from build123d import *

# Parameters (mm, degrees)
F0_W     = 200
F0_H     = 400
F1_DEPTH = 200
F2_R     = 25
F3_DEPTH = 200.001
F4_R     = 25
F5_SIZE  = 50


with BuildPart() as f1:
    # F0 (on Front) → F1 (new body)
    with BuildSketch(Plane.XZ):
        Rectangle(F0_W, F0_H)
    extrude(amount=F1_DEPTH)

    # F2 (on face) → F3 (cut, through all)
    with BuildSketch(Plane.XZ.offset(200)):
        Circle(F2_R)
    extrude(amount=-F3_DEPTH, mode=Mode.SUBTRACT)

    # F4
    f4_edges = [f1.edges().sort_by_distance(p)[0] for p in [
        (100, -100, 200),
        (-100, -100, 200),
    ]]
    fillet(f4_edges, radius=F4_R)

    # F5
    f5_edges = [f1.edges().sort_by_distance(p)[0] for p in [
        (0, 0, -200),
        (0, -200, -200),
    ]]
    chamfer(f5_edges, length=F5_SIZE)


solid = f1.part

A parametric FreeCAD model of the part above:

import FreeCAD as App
import Part
import Sketcher
from FreeCAD import Vector
Q = App.Units.Quantity


def edges_at(feature, points):
    """Names of the edges that pass closest to the given points."""
    edges = feature.Shape.Edges
    near = lambda p: min(range(len(edges)), key=lambda i: edges[i].distToShape(Part.Vertex(*p))[0])
    return sorted({f"Edge{near(p) + 1}" for p in points})


def add_polygon(sketch, points):
    """Adds a closed chain of lines whose ends are joined by coincident constraints."""
    first, n = sketch.GeometryCount, len(points)
    for a, b in zip(points, points[1:] + points[:1]):
        sketch.addGeometry(Part.LineSegment(App.Vector(*a, 0), App.Vector(*b, 0)), False)
    for i in range(n):
        sketch.addConstraint(Sketcher.Constraint("Coincident", first + i, 2, first + (i + 1) % n, 1))

doc = App.newDocument("Part")
body = doc.addObject("PartDesign::Body", "Body")

# Sketch on XZ plane
sketch1 = body.newObject("Sketcher::SketchObject", "Sketch")
sketch1.AttachmentSupport = (doc.getObject("XZ_Plane"), [""])
sketch1.MapMode = "FlatFace"
add_polygon(sketch1, [(-100, 200), (-100, -200), (100, -200), (100, 200)])  # lines 0-3
sketch1.addConstraint(Sketcher.Constraint("Vertical", 0))
sketch1.addConstraint(Sketcher.Constraint("Horizontal", 1))
sketch1.addConstraint(Sketcher.Constraint("Vertical", 2))
sketch1.addConstraint(Sketcher.Constraint("Horizontal", 3))
sketch1.addConstraint(Sketcher.Constraint("Symmetric", 0, 2, 2, 2, -1, 1))
sketch1.addConstraint(Sketcher.Constraint("DistanceX", 1, 1, 1, 2, Q("200 mm")))
sketch1.addConstraint(Sketcher.Constraint("DistanceY", 0, 2, 0, 1, Q("400 mm")))
pad1 = body.newObject("PartDesign::Pad", "Pad")
pad1.Profile = sketch1
pad1.Length = 200

# Sketch on XZ plane
sketch2 = body.newObject("Sketcher::SketchObject", "Sketch001")
sketch2.AttachmentSupport = (doc.getObject("XZ_Plane"), [""])
sketch2.MapMode = "FlatFace"
sketch2.AttachmentOffset = App.Placement(Vector(0, 0, 200), App.Rotation())
sketch2.addGeometry(Part.Circle(Vector(0, 0, 0), Vector(0, 0, 1), 25), False)
sketch2.addConstraint(Sketcher.Constraint("Coincident", 0, 3, -1, 1))
sketch2.addConstraint(Sketcher.Constraint("Diameter", 0, Q("50 mm")))
pocket1 = body.newObject("PartDesign::Pocket", "Pocket")
pocket1.Profile = sketch2
pocket1.Type = "ThroughAll"
doc.recompute()

fillet = body.newObject("PartDesign::Fillet", "Fillet")
fillet.Base = (pocket1, edges_at(pocket1, [(100, -100, 200), (-100, -100, 200)]))
fillet.Radius = 25
doc.recompute()

chamfer = body.newObject("PartDesign::Chamfer", "Chamfer")
chamfer.Base = (fillet, edges_at(fillet, [(0, 0, -200), (0, -200, -200)]))
chamfer.Size = 50

doc.recompute()
